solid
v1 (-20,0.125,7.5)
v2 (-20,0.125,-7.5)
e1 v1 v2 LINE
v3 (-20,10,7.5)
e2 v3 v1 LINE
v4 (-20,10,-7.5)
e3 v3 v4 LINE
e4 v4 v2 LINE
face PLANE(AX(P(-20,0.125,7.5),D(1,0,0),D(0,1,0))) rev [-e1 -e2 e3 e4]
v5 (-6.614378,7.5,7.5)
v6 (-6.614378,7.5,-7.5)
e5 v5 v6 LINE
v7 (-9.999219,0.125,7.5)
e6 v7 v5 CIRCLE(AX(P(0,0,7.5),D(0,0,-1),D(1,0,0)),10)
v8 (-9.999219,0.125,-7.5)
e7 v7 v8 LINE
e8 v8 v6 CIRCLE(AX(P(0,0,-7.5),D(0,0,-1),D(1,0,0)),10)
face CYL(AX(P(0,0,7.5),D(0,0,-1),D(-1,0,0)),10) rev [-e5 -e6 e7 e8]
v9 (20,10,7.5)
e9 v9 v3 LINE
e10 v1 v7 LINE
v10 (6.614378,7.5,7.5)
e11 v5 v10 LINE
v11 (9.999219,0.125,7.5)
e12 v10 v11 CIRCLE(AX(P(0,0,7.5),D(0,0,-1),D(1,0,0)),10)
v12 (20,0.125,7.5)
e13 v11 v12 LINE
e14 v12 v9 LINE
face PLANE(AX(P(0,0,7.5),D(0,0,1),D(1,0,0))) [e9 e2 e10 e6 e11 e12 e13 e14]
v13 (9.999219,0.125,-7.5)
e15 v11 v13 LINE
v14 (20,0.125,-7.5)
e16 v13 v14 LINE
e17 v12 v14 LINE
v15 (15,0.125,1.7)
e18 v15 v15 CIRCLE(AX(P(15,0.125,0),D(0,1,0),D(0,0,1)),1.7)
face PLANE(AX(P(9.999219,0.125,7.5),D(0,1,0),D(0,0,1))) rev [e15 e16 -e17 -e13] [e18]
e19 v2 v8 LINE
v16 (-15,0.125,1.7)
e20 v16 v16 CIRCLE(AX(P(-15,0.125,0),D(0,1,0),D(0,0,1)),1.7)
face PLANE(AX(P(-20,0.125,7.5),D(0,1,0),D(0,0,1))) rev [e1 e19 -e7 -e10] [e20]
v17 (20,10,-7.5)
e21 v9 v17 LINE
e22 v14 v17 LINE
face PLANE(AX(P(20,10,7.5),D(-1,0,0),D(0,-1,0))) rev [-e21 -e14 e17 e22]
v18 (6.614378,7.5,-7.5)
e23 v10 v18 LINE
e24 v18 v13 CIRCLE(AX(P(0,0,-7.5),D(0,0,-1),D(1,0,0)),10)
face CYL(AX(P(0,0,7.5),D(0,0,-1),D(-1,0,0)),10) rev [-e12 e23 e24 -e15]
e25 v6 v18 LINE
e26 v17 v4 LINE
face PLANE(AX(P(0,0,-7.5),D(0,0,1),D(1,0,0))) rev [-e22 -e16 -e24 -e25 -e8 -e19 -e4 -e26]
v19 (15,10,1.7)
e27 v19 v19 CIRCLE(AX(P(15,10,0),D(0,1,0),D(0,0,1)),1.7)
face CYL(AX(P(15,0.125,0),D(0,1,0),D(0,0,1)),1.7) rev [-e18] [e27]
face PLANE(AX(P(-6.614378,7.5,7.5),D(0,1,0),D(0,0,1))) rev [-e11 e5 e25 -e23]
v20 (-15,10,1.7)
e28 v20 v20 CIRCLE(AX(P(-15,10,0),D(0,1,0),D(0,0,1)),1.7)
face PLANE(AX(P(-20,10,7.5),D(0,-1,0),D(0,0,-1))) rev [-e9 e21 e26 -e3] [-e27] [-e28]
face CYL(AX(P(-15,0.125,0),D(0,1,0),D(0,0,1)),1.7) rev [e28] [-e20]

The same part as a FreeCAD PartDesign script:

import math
import FreeCAD as App
import Part
import Sketcher
from FreeCAD import Vector

doc = App.newDocument("Part")
body = doc.addObject("PartDesign::Body", "Body")

# Sketch on XY plane
sketch1 = body.newObject("Sketcher::SketchObject", "Sketch")
sketch1.AttachmentSupport = (doc.getObject("XY_Plane"), [""])
sketch1.MapMode = "FlatFace"
sketch1.addGeometry(Part.LineSegment(Vector(-20, 0.125, 0), Vector(-9.999219, 0.125, 0)), False)
sketch1.addGeometry(Part.ArcOfCircle(Part.Circle(Vector(0, 0, 0), Vector(0, 0, 1), 10), math.radians(131.409622), math.radians(179.283784)), False)
sketch1.addGeometry(Part.LineSegment(Vector(-6.614378, 7.5, 0), Vector(6.614378, 7.5, 0)), False)
sketch1.addGeometry(Part.ArcOfCircle(Part.Circle(Vector(0, 0, 0), Vector(0, 0, 1), 10), math.radians(0.716216), math.radians(48.590378)), False)
sketch1.addGeometry(Part.LineSegment(Vector(9.999219, 0.125, 0), Vector(20, 0.125, 0)), False)
sketch1.addGeometry(Part.LineSegment(Vector(20, 0.125, 0), Vector(20, 10, 0)), False)
sketch1.addGeometry(Part.LineSegment(Vector(20, 10, 0), Vector(-20, 10, 0)), False)
sketch1.addGeometry(Part.LineSegment(Vector(-20, 10, 0), Vector(-20, 0.125, 0)), False)
sketch1.addConstraint(Sketcher.Constraint("Coincident", 0, 2, 1, 2))
sketch1.addConstraint(Sketcher.Constraint("Coincident", 1, 1, 2, 1))
sketch1.addConstraint(Sketcher.Constraint("Coincident", 2, 2, 3, 2))
sketch1.addConstraint(Sketcher.Constraint("Coincident", 3, 1, 4, 1))
sketch1.addConstraint(Sketcher.Constraint("Coincident", 4, 2, 5, 1))
sketch1.addConstraint(Sketcher.Constraint("Coincident", 5, 2, 6, 1))
sketch1.addConstraint(Sketcher.Constraint("Coincident", 6, 2, 7, 1))
sketch1.addConstraint(Sketcher.Constraint("Coincident", 7, 2, 0, 1))
sketch1.addConstraint(Sketcher.Constraint("Horizontal", 0))
sketch1.addConstraint(Sketcher.Constraint("Horizontal", 2))
sketch1.addConstraint(Sketcher.Constraint("Horizontal", 4))
sketch1.addConstraint(Sketcher.Constraint("Vertical", 5))
sketch1.addConstraint(Sketcher.Constraint("Horizontal", 6))
sketch1.addConstraint(Sketcher.Constraint("Vertical", 7))
sketch1.addConstraint(Sketcher.Constraint("Coincident", 1, 3, -1, 1))
sketch1.addConstraint(Sketcher.Constraint("Coincident", 3, 3, -1, 1))
sketch1.addConstraint(Sketcher.Constraint("Equal", 1, 3))
sketch1.addConstraint(Sketcher.Constraint("Symmetric", 4, 2, 7, 2, -2))
sketch1.addConstraint(Sketcher.Constraint("Radius", 1, 10.0))
sketch1.addConstraint(Sketcher.Constraint("DistanceX", 6, 2, 6, 1, 40.0))
sketch1.addConstraint(Sketcher.Constraint("DistanceY", -1, 1, 5, 2, 10.0))
sketch1.addConstraint(Sketcher.Constraint("DistanceY", -1, 1, 1, 1, 7.5))
sketch1.addConstraint(Sketcher.Constraint("DistanceY", 5, 1, 5, 2, 9.875))
pad1 = body.newObject("PartDesign::Pad", "Pad")
pad1.Profile = sketch1
pad1.Length = 15
pad1.Midplane = True

# Sketch on XZ plane
sketch2 = body.newObject("Sketcher::SketchObject", "Sketch001")
sketch2.AttachmentSupport = (doc.getObject("XZ_Plane"), [""])
sketch2.MapMode = "FlatFace"
sketch2.AttachmentOffset = App.Placement(Vector(0, 0, -10), App.Rotation())
sketch2.addGeometry(Part.Circle(Vector(-15, 0, 0), Vector(0, 0, 1), 1.7), False)
sketch2.addGeometry(Part.Circle(Vector(15, 0, 0), Vector(0, 0, 1), 1.7), False)
sketch2.addConstraint(Sketcher.Constraint("Equal", 0, 1))
sketch2.addConstraint(Sketcher.Constraint("Symmetric", 0, 3, 1, 3, -1, 1))
sketch2.addConstraint(Sketcher.Constraint("PointOnObject", 0, 3, -1))
sketch2.addConstraint(Sketcher.Constraint("Diameter", 0, 3.4))
sketch2.addConstraint(Sketcher.Constraint("DistanceX", 0, 3, -1, 1, 15.0))
pocket1 = body.newObject("PartDesign::Pocket", "Pocket")
pocket1.Profile = sketch2
pocket1.Type = "ThroughAll"
pocket1.Reversed = True

doc.recompute()
